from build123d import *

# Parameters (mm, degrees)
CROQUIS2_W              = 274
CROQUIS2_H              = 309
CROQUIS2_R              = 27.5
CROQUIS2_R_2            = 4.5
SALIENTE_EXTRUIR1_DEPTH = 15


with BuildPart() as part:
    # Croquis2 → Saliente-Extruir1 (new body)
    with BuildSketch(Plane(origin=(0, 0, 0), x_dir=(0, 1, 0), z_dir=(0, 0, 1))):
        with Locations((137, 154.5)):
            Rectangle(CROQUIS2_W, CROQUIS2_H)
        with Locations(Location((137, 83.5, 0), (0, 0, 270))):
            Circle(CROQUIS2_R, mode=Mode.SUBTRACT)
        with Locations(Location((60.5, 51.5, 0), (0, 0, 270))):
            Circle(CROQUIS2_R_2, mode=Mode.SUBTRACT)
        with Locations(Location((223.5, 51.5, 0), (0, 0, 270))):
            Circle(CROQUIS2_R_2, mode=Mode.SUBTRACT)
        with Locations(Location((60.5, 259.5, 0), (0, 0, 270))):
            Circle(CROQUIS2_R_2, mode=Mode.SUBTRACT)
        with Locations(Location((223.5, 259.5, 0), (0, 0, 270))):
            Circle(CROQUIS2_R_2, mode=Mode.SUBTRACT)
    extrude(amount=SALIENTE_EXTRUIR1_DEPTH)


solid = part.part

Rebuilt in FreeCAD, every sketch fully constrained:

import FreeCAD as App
import Part
import Sketcher

V = App.Vector

doc = App.newDocument("Part")
params = doc.addObject("Spreadsheet::Sheet", "Params")
for row, (alias, value) in enumerate([
    ("sketch1_diameter", "9 mm"),
    ("sketch1_diameter2", "55 mm"),
    ("sketch1_width", "309 mm"),
    ("sketch1_height", "274 mm"),
    ("pad1_length", "15 mm"),
], start=1):
    params.set(f"A{row}", alias)
    params.set(f"B{row}", "=" + value)
    params.setAlias(f"B{row}", alias)

body = doc.addObject("PartDesign::Body", "Body")

# Sketch on XY plane
sketch1 = body.newObject("Sketcher::SketchObject", "Sketch")
sketch1.AttachmentSupport = (doc.getObject("XY_Plane"), [""])
sketch1.MapMode = "FlatFace"
sketch1.addGeometry(Part.LineSegment(V(-309, 0, 0), V(0, 0, 0)), False)
sketch1.addGeometry(Part.LineSegment(V(0, 0, 0), V(0, 274, 0)), False)
sketch1.addGeometry(Part.LineSegment(V(0, 274, 0), V(-309, 274, 0)), False)
sketch1.addGeometry(Part.LineSegment(V(-309, 274, 0), V(-309, 0, 0)), False)
sketch1.addGeometry(Part.Circle(V(-51.5, 60.5, 0), V(0, 0, 1), 4.5), False)
sketch1.addGeometry(Part.Circle(V(-83.5, 137, 0), V(0, 0, 1), 27.5), False)
sketch1.addGeometry(Part.Circle(V(-51.5, 223.5, 0), V(0, 0, 1), 4.5), False)
sketch1.addGeometry(Part.Circle(V(-259.5, 60.5, 0), V(0, 0, 1), 4.5), False)
sketch1.addGeometry(Part.Circle(V(-259.5, 223.5, 0), V(0, 0, 1), 4.5), False)
sketch1.addConstraint(Sketcher.Constraint("Coincident", 0, 2, 1, 1))
sketch1.addConstraint(Sketcher.Constraint("Coincident", 1, 2, 2, 1))
sketch1.addConstraint(Sketcher.Constraint("Coincident", 2, 2, 3, 1))
sketch1.addConstraint(Sketcher.Constraint("Coincident", 3, 2, 0, 1))
sketch1.addConstraint(Sketcher.Constraint("Horizontal", 0))
sketch1.addConstraint(Sketcher.Constraint("Vertical", 1))
sketch1.addConstraint(Sketcher.Constraint("Horizontal", 2))
sketch1.addConstraint(Sketcher.Constraint("Vertical", 3))
sketch1.addConstraint(Sketcher.Constraint("Coincident", 0, 2, -1, 1))
sketch1.addConstraint(Sketcher.Constraint("Equal", 4, 6))
sketch1.addConstraint(Sketcher.Constraint("Equal", 6, 7))
sketch1.addConstraint(Sketcher.Constraint("Equal", 7, 8))
sketch1.addConstraint(Sketcher.Constraint("Horizontal", 4, 3, 7, 3))
sketch1.addConstraint(Sketcher.Constraint("Horizontal", 6, 3, 8, 3))
sketch1.addConstraint(Sketcher.Constraint("Vertical", 4, 3, 6, 3))
sketch1.addConstraint(Sketcher.Constraint("Vertical", 7, 3, 8, 3))
sketch1.addConstraint(Sketcher.Constraint("Diameter", 4, 9.0))
sketch1.addConstraint(Sketcher.Constraint("Diameter", 5, 55.0))
sketch1.addConstraint(Sketcher.Constraint("DistanceX", 0, 1, 0, 2, 309.0))
sketch1.addConstraint(Sketcher.Constraint("DistanceY", 1, 1, 1, 2, 274.0))
sketch1.addConstraint(Sketcher.Constraint("DistanceY", -1, 1, 5, 3, 137.0))
sketch1.addConstraint(Sketcher.Constraint("DistanceX", 5, 3, 4, 3, 32.0))
sketch1.addConstraint(Sketcher.Constraint("DistanceY", 4, 3, 6, 3, 163.0))
sketch1.addConstraint(Sketcher.Constraint("DistanceX", 7, 3, 5, 3, 176.0))
sketch1.addConstraint(Sketcher.Constraint("DistanceX", 4, 3, -1, 1, 51.5))
sketch1.addConstraint(Sketcher.Constraint("DistanceY", -1, 1, 4, 3, 60.5))
sketch1.setExpression("Constraints[16]", "Params.sketch1_diameter")
sketch1.setExpression("Constraints[17]", "Params.sketch1_diameter2")
sketch1.setExpression("Constraints[18]", "Params.sketch1_width")
sketch1.setExpression("Constraints[19]", "Params.sketch1_height")
pad1 = body.newObject("PartDesign::Pad", "Pad")
pad1.Profile = sketch1
pad1.setExpression("Length", "Params.pad1_length")

doc.recompute()
